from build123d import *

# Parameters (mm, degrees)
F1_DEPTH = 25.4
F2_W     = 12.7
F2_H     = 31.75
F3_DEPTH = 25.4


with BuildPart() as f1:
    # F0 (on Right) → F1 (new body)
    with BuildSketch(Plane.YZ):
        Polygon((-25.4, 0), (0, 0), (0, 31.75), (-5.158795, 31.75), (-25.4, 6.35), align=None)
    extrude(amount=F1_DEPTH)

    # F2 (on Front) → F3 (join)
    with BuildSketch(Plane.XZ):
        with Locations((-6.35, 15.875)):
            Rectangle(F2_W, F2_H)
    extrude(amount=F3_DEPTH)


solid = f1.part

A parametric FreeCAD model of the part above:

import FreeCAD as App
import Part
import Sketcher
from FreeCAD import Vector
Q = App.Units.Quantity

doc = App.newDocument("Part")
body = doc.addObject("PartDesign::Body", "Body")

# Sketch on YZ plane
sketch1 = body.newObject("Sketcher::SketchObject", "Sketch")
sketch1.AttachmentSupport = (doc.getObject("YZ_Plane"), [""])
sketch1.MapMode = "FlatFace"
sketch1.addGeometry([
    Part.LineSegment(Vector(-25.4, 0, 0), Vector(0, 0, 0)),  # 0
    Part.LineSegment(Vector(0, 0, 0), Vector(0, 31.75, 0)),  # 1
    Part.LineSegment(Vector(0, 31.75, 0), Vector(-5.158795, 31.75, 0)),  # 2
    Part.LineSegment(Vector(-5.158795, 31.75, 0), Vector(-25.4, 6.35, 0)),  # 3
    Part.LineSegment(Vector(-25.4, 6.35, 0), Vector(-25.4, 0, 0)),  # 4
], False)
sketch1.addConstraint([
    Sketcher.Constraint("Coincident", 0, 2, 1, 1),
    Sketcher.Constraint("Coincident", 1, 2, 2, 1),
    Sketcher.Constraint("Coincident", 2, 2, 3, 1),
    Sketcher.Constraint("Coincident", 3, 2, 4, 1),
    Sketcher.Constraint("Coincident", 4, 2, 0, 1),
    Sketcher.Constraint("Horizontal", 0),
    Sketcher.Constraint("Vertical", 1),
    Sketcher.Constraint("Horizontal", 2),
    Sketcher.Constraint("Vertical", 4),
    Sketcher.Constraint("Coincident", 0, 2, -1, 1),
    Sketcher.Constraint("DistanceX", 0, 1, 0, 2, Q("1 in")),
    Sketcher.Constraint("DistanceY", 3, 2, 2, 2, Q("1 in")),
    Sketcher.Constraint("DistanceY", 1, 1, 1, 2, Q("1.25 in")),
    Sketcher.Constraint("DistanceX", 2, 2, 2, 1, Q("5.158795 mm")),
])
pad1 = body.newObject("PartDesign::Pad", "Pad")
pad1.Profile = sketch1
pad1.Length = Q("1 in")

# Sketch on XZ plane
sketch2 = body.newObject("Sketcher::SketchObject", "Sketch001")
sketch2.AttachmentSupport = (doc.getObject("XZ_Plane"), [""])
sketch2.MapMode = "FlatFace"
sketch2.addGeometry([
    Part.LineSegment(Vector(-12.7, 31.75, 0), Vector(-12.7, 0, 0)),
    Part.LineSegment(Vector(-12.7, 0, 0), Vector(0, 0, 0)),
    Part.LineSegment(Vector(0, 0, 0), Vector(0, 31.75, 0)),
    Part.LineSegment(Vector(0, 31.75, 0), Vector(-12.7, 31.75, 0)),
], False)
sketch2.addConstraint([
    Sketcher.Constraint("Coincident", 0, 2, 1, 1),
    Sketcher.Constraint("Coincident", 1, 2, 2, 1),
    Sketcher.Constraint("Coincident", 2, 2, 3, 1),
    Sketcher.Constraint("Coincident", 3, 2, 0, 1),
    Sketcher.Constraint("Vertical", 0),
    Sketcher.Constraint("Horizontal", 1),
    Sketcher.Constraint("Vertical", 2),
    Sketcher.Constraint("Horizontal", 3),
    Sketcher.Constraint("Coincident", 1, 2, -1, 1),
    Sketcher.Constraint("DistanceX", 1, 1, 1, 2, Q("0.5 in")),
    Sketcher.Constraint("DistanceY", 0, 2, 0, 1, Q("1.25 in")),
])
pad2 = body.newObject("PartDesign::Pad", "Pad001")
pad2.Profile = sketch2
pad2.Length = Q("1 in")

doc.recompute()
